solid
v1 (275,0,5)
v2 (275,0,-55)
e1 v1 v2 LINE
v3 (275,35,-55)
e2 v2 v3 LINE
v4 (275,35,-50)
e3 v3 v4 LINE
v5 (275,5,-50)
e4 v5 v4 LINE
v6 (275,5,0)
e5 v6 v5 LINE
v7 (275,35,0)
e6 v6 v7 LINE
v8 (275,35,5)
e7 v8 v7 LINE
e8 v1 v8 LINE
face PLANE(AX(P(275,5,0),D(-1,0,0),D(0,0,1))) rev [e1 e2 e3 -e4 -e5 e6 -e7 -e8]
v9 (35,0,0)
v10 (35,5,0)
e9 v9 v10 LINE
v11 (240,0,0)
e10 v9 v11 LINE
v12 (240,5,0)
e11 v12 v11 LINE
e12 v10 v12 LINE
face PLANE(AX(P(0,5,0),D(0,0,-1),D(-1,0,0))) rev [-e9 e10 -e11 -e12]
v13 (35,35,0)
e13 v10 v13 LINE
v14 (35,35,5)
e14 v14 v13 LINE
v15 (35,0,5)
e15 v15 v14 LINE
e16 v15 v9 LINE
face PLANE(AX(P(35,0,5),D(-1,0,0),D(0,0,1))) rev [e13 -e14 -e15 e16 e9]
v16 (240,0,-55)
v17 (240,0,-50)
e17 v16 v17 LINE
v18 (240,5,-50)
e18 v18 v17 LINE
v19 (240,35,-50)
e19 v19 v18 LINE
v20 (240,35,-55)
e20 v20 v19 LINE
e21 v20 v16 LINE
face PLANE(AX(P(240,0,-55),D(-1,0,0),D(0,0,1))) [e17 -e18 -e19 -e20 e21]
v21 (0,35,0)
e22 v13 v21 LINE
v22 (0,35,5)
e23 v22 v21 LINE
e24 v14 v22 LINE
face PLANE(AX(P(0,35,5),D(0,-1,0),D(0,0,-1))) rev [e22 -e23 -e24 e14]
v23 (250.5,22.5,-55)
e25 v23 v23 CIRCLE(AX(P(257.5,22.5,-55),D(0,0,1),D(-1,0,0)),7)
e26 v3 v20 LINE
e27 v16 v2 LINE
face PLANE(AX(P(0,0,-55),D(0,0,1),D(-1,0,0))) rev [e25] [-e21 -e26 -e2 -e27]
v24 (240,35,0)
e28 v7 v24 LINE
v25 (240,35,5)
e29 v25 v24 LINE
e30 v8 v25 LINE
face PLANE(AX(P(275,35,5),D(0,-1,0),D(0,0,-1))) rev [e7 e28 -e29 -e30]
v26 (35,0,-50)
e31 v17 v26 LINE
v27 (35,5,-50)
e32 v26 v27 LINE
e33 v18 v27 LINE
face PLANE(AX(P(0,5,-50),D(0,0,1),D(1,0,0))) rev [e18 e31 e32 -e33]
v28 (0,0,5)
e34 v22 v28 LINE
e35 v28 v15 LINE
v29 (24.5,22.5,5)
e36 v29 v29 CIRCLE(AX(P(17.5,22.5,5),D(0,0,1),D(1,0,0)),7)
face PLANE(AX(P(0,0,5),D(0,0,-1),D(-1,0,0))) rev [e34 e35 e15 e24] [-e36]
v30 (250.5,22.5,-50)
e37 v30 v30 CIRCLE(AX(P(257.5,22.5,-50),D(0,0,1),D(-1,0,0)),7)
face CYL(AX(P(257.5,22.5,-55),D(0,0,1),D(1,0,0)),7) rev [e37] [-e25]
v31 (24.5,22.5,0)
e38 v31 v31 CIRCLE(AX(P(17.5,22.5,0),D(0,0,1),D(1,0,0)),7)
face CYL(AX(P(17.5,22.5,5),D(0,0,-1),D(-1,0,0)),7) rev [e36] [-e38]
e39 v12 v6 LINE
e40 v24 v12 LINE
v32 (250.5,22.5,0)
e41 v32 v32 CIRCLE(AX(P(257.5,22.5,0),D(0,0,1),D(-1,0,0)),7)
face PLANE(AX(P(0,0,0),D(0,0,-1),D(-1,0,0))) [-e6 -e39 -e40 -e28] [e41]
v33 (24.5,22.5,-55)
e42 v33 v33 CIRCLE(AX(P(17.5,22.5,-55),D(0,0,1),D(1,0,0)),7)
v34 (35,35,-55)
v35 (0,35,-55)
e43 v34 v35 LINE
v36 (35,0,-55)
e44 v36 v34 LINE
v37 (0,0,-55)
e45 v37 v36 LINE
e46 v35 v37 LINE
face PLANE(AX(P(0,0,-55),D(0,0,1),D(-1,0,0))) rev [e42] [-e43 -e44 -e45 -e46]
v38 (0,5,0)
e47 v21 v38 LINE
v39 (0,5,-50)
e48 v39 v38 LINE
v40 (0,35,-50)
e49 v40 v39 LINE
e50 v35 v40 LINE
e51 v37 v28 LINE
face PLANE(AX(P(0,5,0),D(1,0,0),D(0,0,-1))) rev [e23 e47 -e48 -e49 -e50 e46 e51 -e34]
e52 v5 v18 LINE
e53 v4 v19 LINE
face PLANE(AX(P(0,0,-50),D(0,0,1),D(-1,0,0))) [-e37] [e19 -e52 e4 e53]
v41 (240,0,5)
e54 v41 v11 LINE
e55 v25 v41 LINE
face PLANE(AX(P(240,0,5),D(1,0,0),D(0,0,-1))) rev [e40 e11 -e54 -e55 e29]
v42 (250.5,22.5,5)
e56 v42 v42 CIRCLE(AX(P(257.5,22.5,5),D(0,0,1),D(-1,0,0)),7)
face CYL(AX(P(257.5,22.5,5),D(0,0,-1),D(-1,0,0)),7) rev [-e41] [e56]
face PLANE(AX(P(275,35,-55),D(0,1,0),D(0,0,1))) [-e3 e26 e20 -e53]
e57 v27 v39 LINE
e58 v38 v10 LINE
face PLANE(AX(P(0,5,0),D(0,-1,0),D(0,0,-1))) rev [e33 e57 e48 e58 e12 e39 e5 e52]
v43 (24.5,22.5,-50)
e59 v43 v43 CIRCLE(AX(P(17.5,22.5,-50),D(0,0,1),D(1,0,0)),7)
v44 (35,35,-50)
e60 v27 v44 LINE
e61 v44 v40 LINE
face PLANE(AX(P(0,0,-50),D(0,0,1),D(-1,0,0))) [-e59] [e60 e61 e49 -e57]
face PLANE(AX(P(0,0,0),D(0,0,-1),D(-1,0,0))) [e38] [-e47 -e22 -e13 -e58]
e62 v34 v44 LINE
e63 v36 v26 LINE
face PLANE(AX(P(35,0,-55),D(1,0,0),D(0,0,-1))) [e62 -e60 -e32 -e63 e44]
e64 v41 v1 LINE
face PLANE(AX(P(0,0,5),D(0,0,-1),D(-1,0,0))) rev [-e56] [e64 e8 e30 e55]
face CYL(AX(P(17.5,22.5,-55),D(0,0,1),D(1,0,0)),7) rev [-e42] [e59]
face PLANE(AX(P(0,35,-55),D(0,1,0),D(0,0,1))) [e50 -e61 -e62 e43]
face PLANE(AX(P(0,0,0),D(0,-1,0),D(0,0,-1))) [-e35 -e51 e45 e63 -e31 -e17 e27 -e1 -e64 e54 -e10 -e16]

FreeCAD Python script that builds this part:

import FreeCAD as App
import Part
import Sketcher

V = App.Vector


def add_polygon(sketch, points):
    """Adds a closed chain of lines whose ends are joined by coincident constraints."""
    first, n = sketch.GeometryCount, len(points)
    for a, b in zip(points, points[1:] + points[:1]):
        sketch.addGeometry(Part.LineSegment(App.Vector(*a, 0), App.Vector(*b, 0)), False)
    for i in range(n):
        sketch.addConstraint(Sketcher.Constraint("Coincident", first + i, 2, first + (i + 1) % n, 1))

doc = App.newDocument("Part")
body = doc.addObject("PartDesign::Body", "Body")

sketch1 = doc.addObject("Sketcher::SketchObject", "Sketch")
body.addObject(sketch1)
sketch1.AttachmentSupport = (doc.XZ_Plane, [""])
sketch1.MapMode = "FlatFace"
add_polygon(sketch1, [(0, -50), (0, 0), (275, 0), (275, -50)])
sketch1.addConstraint([
    Sketcher.Constraint("Vertical", 0),
    Sketcher.Constraint("Horizontal", 1),
    Sketcher.Constraint("Vertical", 2),
    Sketcher.Constraint("Horizontal", 3),
    Sketcher.Constraint("Coincident", 0, 2, -1, 1),
    Sketcher.Constraint("DistanceX", 1, 1, 1, 2, 275.0),
    Sketcher.Constraint("DistanceY", 0, 1, 0, 2, 50.0),
])
pad1 = doc.addObject("PartDesign::Pad", "Pad")
body.addObject(pad1)
pad1.Profile = sketch1
pad1.Length = 5
pad1.Reversed = True

sketch2 = doc.addObject("Sketcher::SketchObject", "Sketch001")
body.addObject(sketch2)
sketch2.AttachmentSupport = (doc.XY_Plane, [""])
sketch2.MapMode = "FlatFace"
add_polygon(sketch2, [(0, 35), (0, 0), (35, 0), (35, 35)])
sketch2.addGeometry(Part.Circle(V(17.5, 22.5, 0), V(0, 0, 1), 7), False)
add_polygon(sketch2, [(240, 35), (240, 0), (275, 0), (275, 35)])
sketch2.addGeometry(Part.Circle(V(257.5, 22.5, 0), V(0, 0, 1), 7), False)
sketch2.addConstraint([
    Sketcher.Constraint("Vertical", 0),
    Sketcher.Constraint("Horizontal", 1),
    Sketcher.Constraint("Vertical", 2),
    Sketcher.Constraint("Horizontal", 3),
    Sketcher.Constraint("Vertical", 5),
    Sketcher.Constraint("Horizontal", 6),
    Sketcher.Constraint("Vertical", 7),
    Sketcher.Constraint("Horizontal", 8),
    Sketcher.Constraint("Coincident", 0, 2, -1, 1),
    Sketcher.Constraint("Equal", 4, 9),
    Sketcher.Constraint("PointOnObject", 5, 2, -1),
    Sketcher.Constraint("Horizontal", 4, 3, 9, 3),
    Sketcher.Constraint("Horizontal", 3, 2, 7, 2),
    Sketcher.Constraint("Equal", 3, 6),
    Sketcher.Constraint("Equal", 8, 0),
    Sketcher.Constraint("Diameter", 4, 14.0),
    Sketcher.Constraint("DistanceX", 1, 1, 1, 2, 35.0),
    Sketcher.Constraint("DistanceX", -1, 1, 5, 2, 240.0),
    Sketcher.Constraint("DistanceX", 4, 3, 9, 3, 240.0),
    Sketcher.Constraint("DistanceX", -1, 1, 4, 3, 17.5),
    Sketcher.Constraint("DistanceY", -1, 1, 4, 3, 22.5),
])
pad2 = doc.addObject("PartDesign::Pad", "Pad001")
body.addObject(pad2)
pad2.Profile = sketch2
pad2.Length = 5
doc.recompute()

datumplane = doc.addObject("PartDesign::Plane", "DatumPlane")
body.addObject(datumplane)
datumplane.AttachmentSupport = (doc.XY_Plane, [""])
datumplane.MapMode = "FlatFace"
datumplane.AttachmentOffset = App.Placement(V(0, 0, -25), App.Rotation())
mirrored = doc.addObject("PartDesign::Mirrored", "Mirrored")
body.addObject(mirrored)
mirrored.Originals = [pad2]
mirrored.MirrorPlane = (datumplane, [""])
body.Tip = mirrored

doc.recompute()
